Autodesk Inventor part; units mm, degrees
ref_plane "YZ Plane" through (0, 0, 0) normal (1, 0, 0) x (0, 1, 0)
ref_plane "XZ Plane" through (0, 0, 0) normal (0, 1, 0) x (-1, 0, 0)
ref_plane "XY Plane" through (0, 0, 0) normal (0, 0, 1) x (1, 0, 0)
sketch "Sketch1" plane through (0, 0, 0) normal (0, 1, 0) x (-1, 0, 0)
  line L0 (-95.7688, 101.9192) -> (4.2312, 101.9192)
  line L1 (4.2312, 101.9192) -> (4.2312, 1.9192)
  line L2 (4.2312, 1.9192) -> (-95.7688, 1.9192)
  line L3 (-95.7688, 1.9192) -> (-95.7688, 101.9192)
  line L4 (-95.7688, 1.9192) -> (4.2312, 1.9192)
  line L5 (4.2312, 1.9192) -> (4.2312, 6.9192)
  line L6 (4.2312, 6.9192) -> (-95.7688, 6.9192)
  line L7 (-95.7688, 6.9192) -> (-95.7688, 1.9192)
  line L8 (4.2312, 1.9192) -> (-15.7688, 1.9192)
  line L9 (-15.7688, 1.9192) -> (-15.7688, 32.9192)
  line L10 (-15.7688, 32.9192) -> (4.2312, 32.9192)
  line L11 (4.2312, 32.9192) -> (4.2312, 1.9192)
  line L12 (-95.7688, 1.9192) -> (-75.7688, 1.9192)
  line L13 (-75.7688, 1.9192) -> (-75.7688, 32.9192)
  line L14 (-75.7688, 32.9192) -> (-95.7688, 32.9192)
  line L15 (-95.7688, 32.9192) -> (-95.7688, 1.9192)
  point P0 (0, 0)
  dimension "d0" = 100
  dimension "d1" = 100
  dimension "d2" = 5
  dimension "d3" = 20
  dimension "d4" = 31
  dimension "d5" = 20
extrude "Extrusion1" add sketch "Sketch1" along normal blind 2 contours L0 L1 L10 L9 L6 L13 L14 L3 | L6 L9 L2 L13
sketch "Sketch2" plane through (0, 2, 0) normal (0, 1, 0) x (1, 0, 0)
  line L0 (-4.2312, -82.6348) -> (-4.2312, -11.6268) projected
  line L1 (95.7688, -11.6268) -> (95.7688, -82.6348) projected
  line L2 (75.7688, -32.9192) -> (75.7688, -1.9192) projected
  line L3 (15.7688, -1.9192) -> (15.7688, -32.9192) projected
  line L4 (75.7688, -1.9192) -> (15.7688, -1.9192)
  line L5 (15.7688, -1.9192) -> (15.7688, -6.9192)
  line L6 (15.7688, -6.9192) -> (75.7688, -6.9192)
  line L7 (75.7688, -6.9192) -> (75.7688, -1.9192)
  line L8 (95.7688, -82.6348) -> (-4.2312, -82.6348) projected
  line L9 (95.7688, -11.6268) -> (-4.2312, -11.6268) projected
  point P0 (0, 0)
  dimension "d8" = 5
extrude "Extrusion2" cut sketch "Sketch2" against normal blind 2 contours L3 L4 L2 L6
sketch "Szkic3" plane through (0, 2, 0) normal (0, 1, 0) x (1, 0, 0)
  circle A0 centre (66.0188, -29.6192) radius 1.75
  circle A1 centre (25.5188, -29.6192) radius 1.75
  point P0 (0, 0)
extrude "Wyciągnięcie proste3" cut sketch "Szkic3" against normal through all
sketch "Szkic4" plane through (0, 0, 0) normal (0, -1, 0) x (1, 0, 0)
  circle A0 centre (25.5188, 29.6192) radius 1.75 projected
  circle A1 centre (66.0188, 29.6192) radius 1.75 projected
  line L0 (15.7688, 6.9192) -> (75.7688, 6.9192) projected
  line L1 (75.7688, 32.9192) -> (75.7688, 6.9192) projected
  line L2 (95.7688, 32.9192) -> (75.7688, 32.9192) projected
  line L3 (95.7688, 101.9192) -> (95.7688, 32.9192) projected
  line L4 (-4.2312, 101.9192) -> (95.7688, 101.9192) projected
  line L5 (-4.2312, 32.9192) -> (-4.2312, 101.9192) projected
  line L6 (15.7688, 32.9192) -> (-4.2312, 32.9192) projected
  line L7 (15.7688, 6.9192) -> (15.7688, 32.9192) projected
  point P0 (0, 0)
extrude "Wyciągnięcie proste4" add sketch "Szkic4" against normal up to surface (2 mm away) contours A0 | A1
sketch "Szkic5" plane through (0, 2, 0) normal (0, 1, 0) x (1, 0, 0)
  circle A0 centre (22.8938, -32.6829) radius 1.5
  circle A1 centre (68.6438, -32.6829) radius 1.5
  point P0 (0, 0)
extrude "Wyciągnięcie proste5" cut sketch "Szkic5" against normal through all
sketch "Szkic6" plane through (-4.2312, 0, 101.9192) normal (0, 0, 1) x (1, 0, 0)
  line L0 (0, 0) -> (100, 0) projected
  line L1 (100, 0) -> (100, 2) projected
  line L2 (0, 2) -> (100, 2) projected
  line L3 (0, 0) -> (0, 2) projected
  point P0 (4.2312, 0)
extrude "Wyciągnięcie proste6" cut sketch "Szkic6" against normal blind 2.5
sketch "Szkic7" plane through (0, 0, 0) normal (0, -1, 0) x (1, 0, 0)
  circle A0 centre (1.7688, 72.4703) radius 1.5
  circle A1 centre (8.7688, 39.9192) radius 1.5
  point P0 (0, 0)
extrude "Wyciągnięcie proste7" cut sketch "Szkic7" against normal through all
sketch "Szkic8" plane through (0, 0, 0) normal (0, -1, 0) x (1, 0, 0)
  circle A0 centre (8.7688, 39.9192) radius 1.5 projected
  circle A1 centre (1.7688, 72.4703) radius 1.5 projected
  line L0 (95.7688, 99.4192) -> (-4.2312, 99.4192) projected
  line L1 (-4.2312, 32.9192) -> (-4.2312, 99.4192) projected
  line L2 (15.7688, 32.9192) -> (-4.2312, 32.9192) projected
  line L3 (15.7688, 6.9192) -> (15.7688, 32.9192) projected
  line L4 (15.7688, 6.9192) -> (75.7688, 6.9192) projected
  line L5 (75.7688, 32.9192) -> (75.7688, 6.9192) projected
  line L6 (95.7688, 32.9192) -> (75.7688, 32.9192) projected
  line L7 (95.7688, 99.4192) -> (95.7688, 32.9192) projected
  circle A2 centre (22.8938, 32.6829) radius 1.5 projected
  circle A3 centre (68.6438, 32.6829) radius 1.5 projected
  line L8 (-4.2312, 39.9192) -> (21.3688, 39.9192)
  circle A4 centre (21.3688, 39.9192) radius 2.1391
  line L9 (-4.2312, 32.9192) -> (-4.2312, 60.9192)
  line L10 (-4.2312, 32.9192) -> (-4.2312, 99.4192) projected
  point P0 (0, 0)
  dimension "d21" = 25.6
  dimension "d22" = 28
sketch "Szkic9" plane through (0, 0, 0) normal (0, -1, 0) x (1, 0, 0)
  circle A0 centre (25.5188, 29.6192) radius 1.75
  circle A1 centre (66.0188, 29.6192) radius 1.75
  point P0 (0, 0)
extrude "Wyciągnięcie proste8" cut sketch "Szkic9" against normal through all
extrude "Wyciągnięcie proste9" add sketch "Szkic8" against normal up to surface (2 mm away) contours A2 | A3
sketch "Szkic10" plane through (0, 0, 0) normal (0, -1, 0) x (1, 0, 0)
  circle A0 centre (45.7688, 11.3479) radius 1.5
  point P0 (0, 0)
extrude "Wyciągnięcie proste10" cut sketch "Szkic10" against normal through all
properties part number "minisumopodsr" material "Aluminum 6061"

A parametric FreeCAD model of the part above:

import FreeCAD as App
import Part
import Sketcher
Q = App.Units.Quantity


def add_polygon(sketch, points):
    """Adds a closed chain of lines whose ends are joined by coincident constraints."""
    first, n = sketch.GeometryCount, len(points)
    for a, b in zip(points, points[1:] + points[:1]):
        sketch.addGeometry(Part.LineSegment(App.Vector(*a, 0), App.Vector(*b, 0)), False)
    for i in range(n):
        sketch.addConstraint(Sketcher.Constraint("Coincident", first + i, 2, first + (i + 1) % n, 1))

doc = App.newDocument("Part")
params = doc.addObject("Spreadsheet::Sheet", "Params")
for row, (alias, value) in enumerate([
    ("sketch1_width", "100 mm"),
    ("sketch1_width2", "20 mm"),
    ("sketch1_height", "31 mm"),
    ("pad1_length", "2 mm"),
    ("sketch2_height", "5 mm"),
    ("sketch2_width", "60 mm"),
    ("pocket1_length", "2 mm"),
    ("sketch3_diameter", "3.5 mm"),
    ("sketch4_diameter", "3.5 mm"),
    ("pad2_length", "2 mm"),
    ("sketch5_diameter", "3 mm"),
    ("sketch6_width", "100 mm"),
    ("sketch6_height", "2 mm"),
    ("pocket4_length", "2.5 mm"),
    ("sketch7_diameter", "3 mm"),
    ("sketch8_diameter", "3.5 mm"),
    ("sketch9_diameter", "3 mm"),
    ("pad3_length", "2 mm"),
    ("sketch10_diameter", "3 mm"),
], start=1):
    params.set(f"A{row}", alias)
    params.set(f"B{row}", "=" + value)
    params.setAlias(f"B{row}", alias)

body = doc.addObject("PartDesign::Body", "Body")

sketch1 = body.newObject("Sketcher::SketchObject", "Sketch")
sketch1.AttachmentSupport = (doc.getObject("XZ_Plane"), [""])
sketch1.MapMode = "FlatFace"
add_polygon(sketch1, [(-4, 102), (96, 102), (96, 33), (76, 33), (76, 2), (16, 2), (16, 33), (-4, 33)])
sketch1.addConstraint([
    Sketcher.Constraint("Horizontal", 0),
    Sketcher.Constraint("Vertical", 1),
    Sketcher.Constraint("Horizontal", 2),
    Sketcher.Constraint("Vertical", 3),
    Sketcher.Constraint("Horizontal", 4),
    Sketcher.Constraint("Vertical", 5),
    Sketcher.Constraint("Horizontal", 6),
    Sketcher.Constraint("Vertical", 7),
    Sketcher.Constraint("Horizontal", 2, 2, 5, 2),
    Sketcher.Constraint("Equal", 2, 6),
    Sketcher.Constraint("DistanceX", 0, 1, 0, 2, Q("100 mm")),
    Sketcher.Constraint("DistanceX", 2, 2, 2, 1, Q("20 mm")),
    Sketcher.Constraint("DistanceY", 3, 2, 3, 1, Q("31 mm")),
    Sketcher.Constraint("DistanceY", 3, 2, 0, 2, Q("100 mm")),
    Sketcher.Constraint("DistanceX", -1, 1, 0, 2, Q("95.7688 mm")),
    Sketcher.Constraint("DistanceY", -1, 1, 0, 2, Q("101.9192 mm")),
])
sketch1.setExpression("Constraints[18]", "Params.sketch1_width")
sketch1.setExpression("Constraints[19]", "Params.sketch1_width2")
sketch1.setExpression("Constraints[20]", "Params.sketch1_height")
pad1 = body.newObject("PartDesign::Pad", "Pad")
pad1.Profile = sketch1
pad1.setExpression("Length", "Params.pad1_length")
pad1.Reversed = True

sketch2 = body.newObject("Sketcher::SketchObject", "Sketch001")
sketch2.AttachmentSupport = (doc.getObject("XZ_Plane"), [""])
sketch2.MapMode = "FlatFace"
sketch2.AttachmentOffset = App.Placement(App.Vector(0, 0, -2), App.Rotation())
add_polygon(sketch2, [(16, 2), (16, 7), (76, 7), (76, 2)])
sketch2.addConstraint([
    Sketcher.Constraint("Vertical", 0),
    Sketcher.Constraint("Horizontal", 1),
    Sketcher.Constraint("Vertical", 2),
    Sketcher.Constraint("Horizontal", 3),
    Sketcher.Constraint("DistanceY", 0, 1, 0, 2, Q("5 mm")),
    Sketcher.Constraint("DistanceX", 1, 1, 1, 2, Q("60 mm")),
    Sketcher.Constraint("DistanceX", -1, 1, 0, 2, Q("15.7688 mm")),
    Sketcher.Constraint("DistanceY", -1, 1, 0, 2, Q("6.9192 mm")),
])
sketch2.setExpression("Constraints[8]", "Params.sketch2_height")
sketch2.setExpression("Constraints[9]", "Params.sketch2_width")
pocket1 = body.newObject("PartDesign::Pocket", "Pocket")
pocket1.Profile = sketch2
pocket1.setExpression("Length", "Params.pocket1_length")
pocket1.Reversed = True

sketch3 = body.newObject("Sketcher::SketchObject", "Sketch002")
sketch3.AttachmentSupport = (doc.getObject("XZ_Plane"), [""])
sketch3.MapMode = "FlatFace"
sketch3.AttachmentOffset = App.Placement(App.Vector(0, 0, -2), App.Rotation())
sketch3.addGeometry([
    Part.Circle(App.Vector(66, 29.6, 0), App.Vector(0, 0, 1), 1.8),
    Part.Circle(App.Vector(25.5, 29.6, 0), App.Vector(0, 0, 1), 1.8),
], False)
sketch3.addConstraint([
    Sketcher.Constraint("Equal", 0, 1),
    Sketcher.Constraint("Horizontal", 0, 3, 1, 3),
    Sketcher.Constraint("Diameter", 0, Q("3.5 mm")),
    Sketcher.Constraint("DistanceX", 1, 3, 0, 3, Q("40.5 mm")),
    Sketcher.Constraint("DistanceX", -1, 1, 0, 3, Q("66.0188 mm")),
    Sketcher.Constraint("DistanceY", -1, 1, 0, 3, Q("29.6192 mm")),
])
sketch3.setExpression("Constraints[2]", "Params.sketch3_diameter")
pocket2 = body.newObject("PartDesign::Pocket", "Pocket001")
pocket2.Profile = sketch3
pocket2.Type = "ThroughAll"
pocket2.Reversed = True

sketch4 = body.newObject("Sketcher::SketchObject", "Sketch003")
sketch4.AttachmentSupport = (doc.getObject("XZ_Plane"), [""])
sketch4.MapMode = "FlatFace"
sketch4.addGeometry([
    Part.Circle(App.Vector(25.5, 29.6, 0), App.Vector(0, 0, 1), 1.8),
    Part.Circle(App.Vector(66, 29.6, 0), App.Vector(0, 0, 1), 1.8),
], False)
sketch4.addConstraint([
    Sketcher.Constraint("Equal", 0, 1),
    Sketcher.Constraint("Horizontal", 0, 3, 1, 3),
    Sketcher.Constraint("Diameter", 0, Q("3.5 mm")),
    Sketcher.Constraint("DistanceX", 0, 3, 1, 3, Q("40.5 mm")),
    Sketcher.Constraint("DistanceX", -1, 1, 0, 3, Q("25.5188 mm")),
    Sketcher.Constraint("DistanceY", -1, 1, 0, 3, Q("29.6192 mm")),
])
sketch4.setExpression("Constraints[2]", "Params.sketch4_diameter")
pad2 = body.newObject("PartDesign::Pad", "Pad001")
pad2.Profile = sketch4
pad2.setExpression("Length", "Params.pad2_length")
pad2.Reversed = True

sketch5 = body.newObject("Sketcher::SketchObject", "Sketch004")
sketch5.AttachmentSupport = (doc.getObject("XZ_Plane"), [""])
sketch5.MapMode = "FlatFace"
sketch5.AttachmentOffset = App.Placement(App.Vector(0, 0, -2), App.Rotation())
sketch5.addGeometry([
    Part.Circle(App.Vector(22.9, 32.7, 0), App.Vector(0, 0, 1), 1.5),
    Part.Circle(App.Vector(68.6, 32.7, 0), App.Vector(0, 0, 1), 1.5),
], False)
sketch5.addConstraint([
    Sketcher.Constraint("Equal", 0, 1),
    Sketcher.Constraint("Horizontal", 0, 3, 1, 3),
    Sketcher.Constraint("Diameter", 0, Q("3 mm")),
    Sketcher.Constraint("DistanceX", 0, 3, 1, 3, Q("45.75 mm")),
    Sketcher.Constraint("DistanceY", -1, 1, 0, 3, Q("32.683 mm")),
    Sketcher.Constraint("DistanceX", -1, 1, 0, 3, Q("22.8938 mm")),
])
sketch5.setExpression("Constraints[2]", "Params.sketch5_diameter")
pocket3 = body.newObject("PartDesign::Pocket", "Pocket002")
pocket3.Profile = sketch5
pocket3.Type = "ThroughAll"
pocket3.Reversed = True

sketch6 = body.newObject("Sketcher::SketchObject", "Sketch005")
sketch6.AttachmentSupport = (doc.getObject("XY_Plane"), [""])
sketch6.MapMode = "FlatFace"
sketch6.AttachmentOffset = App.Placement(App.Vector(0, 0, 101.9192), App.Rotation())
add_polygon(sketch6, [(-4.2, 2), (-4.2, 0), (95.8, 0), (95.8, 2)])
sketch6.addConstraint([
    Sketcher.Constraint("Vertical", 0),
    Sketcher.Constraint("Horizontal", 1),
    Sketcher.Constraint("Vertical", 2),
    Sketcher.Constraint("Horizontal", 3),
    Sketcher.Constraint("PointOnObject", 0, 2, -1),
    Sketcher.Constraint("DistanceX", 1, 1, 1, 2, Q("100 mm")),
    Sketcher.Constraint("DistanceY", 0, 2, 0, 1, Q("2 mm")),
    Sketcher.Constraint("DistanceX", 0, 2, -1, 1, Q("4.2312 mm")),
])
sketch6.setExpression("Constraints[9]", "Params.sketch6_width")
sketch6.setExpression("Constraints[10]", "Params.sketch6_height")
pocket4 = body.newObject("PartDesign::Pocket", "Pocket003")
pocket4.Profile = sketch6
pocket4.setExpression("Length", "Params.pocket4_length")

sketch7 = body.newObject("Sketcher::SketchObject", "Sketch006")
sketch7.AttachmentSupport = (doc.getObject("XZ_Plane"), [""])
sketch7.MapMode = "FlatFace"
sketch7.addGeometry([
    Part.Circle(App.Vector(1.8, 72.5, 0), App.Vector(0, 0, 1), 1.5),
    Part.Circle(App.Vector(8.8, 39.9, 0), App.Vector(0, 0, 1), 1.5),
], False)
sketch7.addConstraint([
    Sketcher.Constraint("Equal", 0, 1),
    Sketcher.Constraint("Diameter", 0, Q("3 mm")),
    Sketcher.Constraint("DistanceX", 0, 3, 1, 3, Q("7 mm")),
    Sketcher.Constraint("DistanceY", 1, 3, 0, 3, Q("32.551 mm")),
    Sketcher.Constraint("DistanceX", -1, 1, 0, 3, Q("1.7688 mm")),
    Sketcher.Constraint("DistanceY", -1, 1, 0, 3, Q("72.4703 mm")),
])
sketch7.setExpression("Constraints[1]", "Params.sketch7_diameter")
pocket5 = body.newObject("PartDesign::Pocket", "Pocket004")
pocket5.Profile = sketch7
pocket5.Type = "ThroughAll"

sketch8 = body.newObject("Sketcher::SketchObject", "Sketch007")
sketch8.AttachmentSupport = (doc.getObject("XZ_Plane"), [""])
sketch8.MapMode = "FlatFace"
sketch8.addGeometry([
    Part.Circle(App.Vector(25.5, 29.6, 0), App.Vector(0, 0, 1), 1.8),
    Part.Circle(App.Vector(66, 29.6, 0), App.Vector(0, 0, 1), 1.8),
], False)
sketch8.addConstraint([
    Sketcher.Constraint("Equal", 0, 1),
    Sketcher.Constraint("Horizontal", 0, 3, 1, 3),
    Sketcher.Constraint("Diameter", 0, Q("3.5 mm")),
    Sketcher.Constraint("DistanceX", 0, 3, 1, 3, Q("40.5 mm")),
    Sketcher.Constraint("DistanceX", -1, 1, 0, 3, Q("25.5188 mm")),
    Sketcher.Constraint("DistanceY", -1, 1, 0, 3, Q("29.6192 mm")),
])
sketch8.setExpression("Constraints[2]", "Params.sketch8_diameter")
pocket6 = body.newObject("PartDesign::Pocket", "Pocket005")
pocket6.Profile = sketch8
pocket6.Type = "ThroughAll"

sketch9 = body.newObject("Sketcher::SketchObject", "Sketch008")
sketch9.AttachmentSupport = (doc.getObject("XZ_Plane"), [""])
sketch9.MapMode = "FlatFace"
sketch9.addGeometry([
    Part.Circle(App.Vector(22.9, 32.7, 0), App.Vector(0, 0, 1), 1.5),
    Part.Circle(App.Vector(68.6, 32.7, 0), App.Vector(0, 0, 1), 1.5),
], False)
sketch9.addConstraint([
    Sketcher.Constraint("Equal", 0, 1),
    Sketcher.Constraint("Horizontal", 0, 3, 1, 3),
    Sketcher.Constraint("Diameter", 0, Q("3 mm")),
    Sketcher.Constraint("DistanceX", 0, 3, 1, 3, Q("45.75 mm")),
    Sketcher.Constraint("DistanceY", -1, 1, 0, 3, Q("32.683 mm")),
    Sketcher.Constraint("DistanceX", -1, 1, 0, 3, Q("22.8938 mm")),
])
sketch9.setExpression("Constraints[2]", "Params.sketch9_diameter")
pad3 = body.newObject("PartDesign::Pad", "Pad002")
pad3.Profile = sketch9
pad3.setExpression("Length", "Params.pad3_length")
pad3.Reversed = True

sketch10 = body.newObject("Sketcher::SketchObject", "Sketch009")
sketch10.AttachmentSupport = (doc.getObject("XZ_Plane"), [""])
sketch10.MapMode = "FlatFace"
sketch10.addGeometry(Part.Circle(App.Vector(45.8, 11.3, 0), App.Vector(0, 0, 1), 1.5), False)
sketch10.addConstraint([
    Sketcher.Constraint("Diameter", 0, Q("3 mm")),
    Sketcher.Constraint("DistanceY", -1, 1, 0, 3, Q("11.348 mm")),
    Sketcher.Constraint("DistanceX", -1, 1, 0, 3, Q("45.7688 mm")),
])
sketch10.setExpression("Constraints[0]", "Params.sketch10_diameter")
pocket7 = body.newObject("PartDesign::Pocket", "Pocket006")
pocket7.Profile = sketch10
pocket7.Type = "ThroughAll"

doc.recompute()
